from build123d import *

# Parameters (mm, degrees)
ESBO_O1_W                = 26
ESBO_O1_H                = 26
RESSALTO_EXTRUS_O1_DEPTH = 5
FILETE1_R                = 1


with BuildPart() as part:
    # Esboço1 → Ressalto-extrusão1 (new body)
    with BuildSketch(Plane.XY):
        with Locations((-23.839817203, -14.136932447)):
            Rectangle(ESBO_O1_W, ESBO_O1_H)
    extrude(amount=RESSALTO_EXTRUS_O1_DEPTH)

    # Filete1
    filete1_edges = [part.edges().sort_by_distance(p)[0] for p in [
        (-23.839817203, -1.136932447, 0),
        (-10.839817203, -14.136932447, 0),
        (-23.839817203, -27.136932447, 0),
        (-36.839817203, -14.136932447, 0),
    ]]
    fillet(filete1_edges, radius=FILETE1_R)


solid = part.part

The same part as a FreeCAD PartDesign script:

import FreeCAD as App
import Part
import Sketcher

V = App.Vector


def edges_at(feature, points):
    """Names of the edges that pass closest to the given points."""
    edges = feature.Shape.Edges
    near = lambda p: min(range(len(edges)), key=lambda i: edges[i].distToShape(Part.Vertex(*p))[0])
    return sorted({f"Edge{near(p) + 1}" for p in points})

doc = App.newDocument("Part")
body = doc.addObject("PartDesign::Body", "Body")

# Sketch on XY plane
sketch1 = body.newObject("Sketcher::SketchObject", "Sketch")
sketch1.AttachmentSupport = (doc.getObject("XY_Plane"), [""])
sketch1.MapMode = "FlatFace"
sketch1.addGeometry(Part.LineSegment(V(-37, -1, 0), V(-37, -27, 0)), False)
sketch1.addGeometry(Part.LineSegment(V(-37, -27, 0), V(-11, -27, 0)), False)
sketch1.addGeometry(Part.LineSegment(V(-11, -27, 0), V(-11, -1, 0)), False)
sketch1.addGeometry(Part.LineSegment(V(-11, -1, 0), V(-37, -1, 0)), False)
sketch1.addConstraint(Sketcher.Constraint("Coincident", 0, 2, 1, 1))
sketch1.addConstraint(Sketcher.Constraint("Coincident", 1, 2, 2, 1))
sketch1.addConstraint(Sketcher.Constraint("Coincident", 2, 2, 3, 1))
sketch1.addConstraint(Sketcher.Constraint("Coincident", 3, 2, 0, 1))
sketch1.addConstraint(Sketcher.Constraint("Vertical", 0))
sketch1.addConstraint(Sketcher.Constraint("Horizontal", 1))
sketch1.addConstraint(Sketcher.Constraint("Vertical", 2))
sketch1.addConstraint(Sketcher.Constraint("Horizontal", 3))
sketch1.addConstraint(Sketcher.Constraint("Equal", 3, 0))
sketch1.addConstraint(Sketcher.Constraint("DistanceX", 1, 1, 1, 2, 26.0))
sketch1.addConstraint(Sketcher.Constraint("DistanceX", 0, 2, -1, 1, 36.839817))
sketch1.addConstraint(Sketcher.Constraint("DistanceY", 0, 2, -1, 1, 27.136932))
pad1 = body.newObject("PartDesign::Pad", "Pad")
pad1.Profile = sketch1
pad1.Length = 5
doc.recompute()

fillet = body.newObject("PartDesign::Fillet", "Fillet")
fillet.Base = (pad1, edges_at(pad1, [
    (-23.84, -1.137, 0),
    (-10.84, -14.137, 0),
    (-23.84, -27.137, 0),
    (-36.84, -14.137, 0),
]))
fillet.Radius = 1

doc.recompute()
